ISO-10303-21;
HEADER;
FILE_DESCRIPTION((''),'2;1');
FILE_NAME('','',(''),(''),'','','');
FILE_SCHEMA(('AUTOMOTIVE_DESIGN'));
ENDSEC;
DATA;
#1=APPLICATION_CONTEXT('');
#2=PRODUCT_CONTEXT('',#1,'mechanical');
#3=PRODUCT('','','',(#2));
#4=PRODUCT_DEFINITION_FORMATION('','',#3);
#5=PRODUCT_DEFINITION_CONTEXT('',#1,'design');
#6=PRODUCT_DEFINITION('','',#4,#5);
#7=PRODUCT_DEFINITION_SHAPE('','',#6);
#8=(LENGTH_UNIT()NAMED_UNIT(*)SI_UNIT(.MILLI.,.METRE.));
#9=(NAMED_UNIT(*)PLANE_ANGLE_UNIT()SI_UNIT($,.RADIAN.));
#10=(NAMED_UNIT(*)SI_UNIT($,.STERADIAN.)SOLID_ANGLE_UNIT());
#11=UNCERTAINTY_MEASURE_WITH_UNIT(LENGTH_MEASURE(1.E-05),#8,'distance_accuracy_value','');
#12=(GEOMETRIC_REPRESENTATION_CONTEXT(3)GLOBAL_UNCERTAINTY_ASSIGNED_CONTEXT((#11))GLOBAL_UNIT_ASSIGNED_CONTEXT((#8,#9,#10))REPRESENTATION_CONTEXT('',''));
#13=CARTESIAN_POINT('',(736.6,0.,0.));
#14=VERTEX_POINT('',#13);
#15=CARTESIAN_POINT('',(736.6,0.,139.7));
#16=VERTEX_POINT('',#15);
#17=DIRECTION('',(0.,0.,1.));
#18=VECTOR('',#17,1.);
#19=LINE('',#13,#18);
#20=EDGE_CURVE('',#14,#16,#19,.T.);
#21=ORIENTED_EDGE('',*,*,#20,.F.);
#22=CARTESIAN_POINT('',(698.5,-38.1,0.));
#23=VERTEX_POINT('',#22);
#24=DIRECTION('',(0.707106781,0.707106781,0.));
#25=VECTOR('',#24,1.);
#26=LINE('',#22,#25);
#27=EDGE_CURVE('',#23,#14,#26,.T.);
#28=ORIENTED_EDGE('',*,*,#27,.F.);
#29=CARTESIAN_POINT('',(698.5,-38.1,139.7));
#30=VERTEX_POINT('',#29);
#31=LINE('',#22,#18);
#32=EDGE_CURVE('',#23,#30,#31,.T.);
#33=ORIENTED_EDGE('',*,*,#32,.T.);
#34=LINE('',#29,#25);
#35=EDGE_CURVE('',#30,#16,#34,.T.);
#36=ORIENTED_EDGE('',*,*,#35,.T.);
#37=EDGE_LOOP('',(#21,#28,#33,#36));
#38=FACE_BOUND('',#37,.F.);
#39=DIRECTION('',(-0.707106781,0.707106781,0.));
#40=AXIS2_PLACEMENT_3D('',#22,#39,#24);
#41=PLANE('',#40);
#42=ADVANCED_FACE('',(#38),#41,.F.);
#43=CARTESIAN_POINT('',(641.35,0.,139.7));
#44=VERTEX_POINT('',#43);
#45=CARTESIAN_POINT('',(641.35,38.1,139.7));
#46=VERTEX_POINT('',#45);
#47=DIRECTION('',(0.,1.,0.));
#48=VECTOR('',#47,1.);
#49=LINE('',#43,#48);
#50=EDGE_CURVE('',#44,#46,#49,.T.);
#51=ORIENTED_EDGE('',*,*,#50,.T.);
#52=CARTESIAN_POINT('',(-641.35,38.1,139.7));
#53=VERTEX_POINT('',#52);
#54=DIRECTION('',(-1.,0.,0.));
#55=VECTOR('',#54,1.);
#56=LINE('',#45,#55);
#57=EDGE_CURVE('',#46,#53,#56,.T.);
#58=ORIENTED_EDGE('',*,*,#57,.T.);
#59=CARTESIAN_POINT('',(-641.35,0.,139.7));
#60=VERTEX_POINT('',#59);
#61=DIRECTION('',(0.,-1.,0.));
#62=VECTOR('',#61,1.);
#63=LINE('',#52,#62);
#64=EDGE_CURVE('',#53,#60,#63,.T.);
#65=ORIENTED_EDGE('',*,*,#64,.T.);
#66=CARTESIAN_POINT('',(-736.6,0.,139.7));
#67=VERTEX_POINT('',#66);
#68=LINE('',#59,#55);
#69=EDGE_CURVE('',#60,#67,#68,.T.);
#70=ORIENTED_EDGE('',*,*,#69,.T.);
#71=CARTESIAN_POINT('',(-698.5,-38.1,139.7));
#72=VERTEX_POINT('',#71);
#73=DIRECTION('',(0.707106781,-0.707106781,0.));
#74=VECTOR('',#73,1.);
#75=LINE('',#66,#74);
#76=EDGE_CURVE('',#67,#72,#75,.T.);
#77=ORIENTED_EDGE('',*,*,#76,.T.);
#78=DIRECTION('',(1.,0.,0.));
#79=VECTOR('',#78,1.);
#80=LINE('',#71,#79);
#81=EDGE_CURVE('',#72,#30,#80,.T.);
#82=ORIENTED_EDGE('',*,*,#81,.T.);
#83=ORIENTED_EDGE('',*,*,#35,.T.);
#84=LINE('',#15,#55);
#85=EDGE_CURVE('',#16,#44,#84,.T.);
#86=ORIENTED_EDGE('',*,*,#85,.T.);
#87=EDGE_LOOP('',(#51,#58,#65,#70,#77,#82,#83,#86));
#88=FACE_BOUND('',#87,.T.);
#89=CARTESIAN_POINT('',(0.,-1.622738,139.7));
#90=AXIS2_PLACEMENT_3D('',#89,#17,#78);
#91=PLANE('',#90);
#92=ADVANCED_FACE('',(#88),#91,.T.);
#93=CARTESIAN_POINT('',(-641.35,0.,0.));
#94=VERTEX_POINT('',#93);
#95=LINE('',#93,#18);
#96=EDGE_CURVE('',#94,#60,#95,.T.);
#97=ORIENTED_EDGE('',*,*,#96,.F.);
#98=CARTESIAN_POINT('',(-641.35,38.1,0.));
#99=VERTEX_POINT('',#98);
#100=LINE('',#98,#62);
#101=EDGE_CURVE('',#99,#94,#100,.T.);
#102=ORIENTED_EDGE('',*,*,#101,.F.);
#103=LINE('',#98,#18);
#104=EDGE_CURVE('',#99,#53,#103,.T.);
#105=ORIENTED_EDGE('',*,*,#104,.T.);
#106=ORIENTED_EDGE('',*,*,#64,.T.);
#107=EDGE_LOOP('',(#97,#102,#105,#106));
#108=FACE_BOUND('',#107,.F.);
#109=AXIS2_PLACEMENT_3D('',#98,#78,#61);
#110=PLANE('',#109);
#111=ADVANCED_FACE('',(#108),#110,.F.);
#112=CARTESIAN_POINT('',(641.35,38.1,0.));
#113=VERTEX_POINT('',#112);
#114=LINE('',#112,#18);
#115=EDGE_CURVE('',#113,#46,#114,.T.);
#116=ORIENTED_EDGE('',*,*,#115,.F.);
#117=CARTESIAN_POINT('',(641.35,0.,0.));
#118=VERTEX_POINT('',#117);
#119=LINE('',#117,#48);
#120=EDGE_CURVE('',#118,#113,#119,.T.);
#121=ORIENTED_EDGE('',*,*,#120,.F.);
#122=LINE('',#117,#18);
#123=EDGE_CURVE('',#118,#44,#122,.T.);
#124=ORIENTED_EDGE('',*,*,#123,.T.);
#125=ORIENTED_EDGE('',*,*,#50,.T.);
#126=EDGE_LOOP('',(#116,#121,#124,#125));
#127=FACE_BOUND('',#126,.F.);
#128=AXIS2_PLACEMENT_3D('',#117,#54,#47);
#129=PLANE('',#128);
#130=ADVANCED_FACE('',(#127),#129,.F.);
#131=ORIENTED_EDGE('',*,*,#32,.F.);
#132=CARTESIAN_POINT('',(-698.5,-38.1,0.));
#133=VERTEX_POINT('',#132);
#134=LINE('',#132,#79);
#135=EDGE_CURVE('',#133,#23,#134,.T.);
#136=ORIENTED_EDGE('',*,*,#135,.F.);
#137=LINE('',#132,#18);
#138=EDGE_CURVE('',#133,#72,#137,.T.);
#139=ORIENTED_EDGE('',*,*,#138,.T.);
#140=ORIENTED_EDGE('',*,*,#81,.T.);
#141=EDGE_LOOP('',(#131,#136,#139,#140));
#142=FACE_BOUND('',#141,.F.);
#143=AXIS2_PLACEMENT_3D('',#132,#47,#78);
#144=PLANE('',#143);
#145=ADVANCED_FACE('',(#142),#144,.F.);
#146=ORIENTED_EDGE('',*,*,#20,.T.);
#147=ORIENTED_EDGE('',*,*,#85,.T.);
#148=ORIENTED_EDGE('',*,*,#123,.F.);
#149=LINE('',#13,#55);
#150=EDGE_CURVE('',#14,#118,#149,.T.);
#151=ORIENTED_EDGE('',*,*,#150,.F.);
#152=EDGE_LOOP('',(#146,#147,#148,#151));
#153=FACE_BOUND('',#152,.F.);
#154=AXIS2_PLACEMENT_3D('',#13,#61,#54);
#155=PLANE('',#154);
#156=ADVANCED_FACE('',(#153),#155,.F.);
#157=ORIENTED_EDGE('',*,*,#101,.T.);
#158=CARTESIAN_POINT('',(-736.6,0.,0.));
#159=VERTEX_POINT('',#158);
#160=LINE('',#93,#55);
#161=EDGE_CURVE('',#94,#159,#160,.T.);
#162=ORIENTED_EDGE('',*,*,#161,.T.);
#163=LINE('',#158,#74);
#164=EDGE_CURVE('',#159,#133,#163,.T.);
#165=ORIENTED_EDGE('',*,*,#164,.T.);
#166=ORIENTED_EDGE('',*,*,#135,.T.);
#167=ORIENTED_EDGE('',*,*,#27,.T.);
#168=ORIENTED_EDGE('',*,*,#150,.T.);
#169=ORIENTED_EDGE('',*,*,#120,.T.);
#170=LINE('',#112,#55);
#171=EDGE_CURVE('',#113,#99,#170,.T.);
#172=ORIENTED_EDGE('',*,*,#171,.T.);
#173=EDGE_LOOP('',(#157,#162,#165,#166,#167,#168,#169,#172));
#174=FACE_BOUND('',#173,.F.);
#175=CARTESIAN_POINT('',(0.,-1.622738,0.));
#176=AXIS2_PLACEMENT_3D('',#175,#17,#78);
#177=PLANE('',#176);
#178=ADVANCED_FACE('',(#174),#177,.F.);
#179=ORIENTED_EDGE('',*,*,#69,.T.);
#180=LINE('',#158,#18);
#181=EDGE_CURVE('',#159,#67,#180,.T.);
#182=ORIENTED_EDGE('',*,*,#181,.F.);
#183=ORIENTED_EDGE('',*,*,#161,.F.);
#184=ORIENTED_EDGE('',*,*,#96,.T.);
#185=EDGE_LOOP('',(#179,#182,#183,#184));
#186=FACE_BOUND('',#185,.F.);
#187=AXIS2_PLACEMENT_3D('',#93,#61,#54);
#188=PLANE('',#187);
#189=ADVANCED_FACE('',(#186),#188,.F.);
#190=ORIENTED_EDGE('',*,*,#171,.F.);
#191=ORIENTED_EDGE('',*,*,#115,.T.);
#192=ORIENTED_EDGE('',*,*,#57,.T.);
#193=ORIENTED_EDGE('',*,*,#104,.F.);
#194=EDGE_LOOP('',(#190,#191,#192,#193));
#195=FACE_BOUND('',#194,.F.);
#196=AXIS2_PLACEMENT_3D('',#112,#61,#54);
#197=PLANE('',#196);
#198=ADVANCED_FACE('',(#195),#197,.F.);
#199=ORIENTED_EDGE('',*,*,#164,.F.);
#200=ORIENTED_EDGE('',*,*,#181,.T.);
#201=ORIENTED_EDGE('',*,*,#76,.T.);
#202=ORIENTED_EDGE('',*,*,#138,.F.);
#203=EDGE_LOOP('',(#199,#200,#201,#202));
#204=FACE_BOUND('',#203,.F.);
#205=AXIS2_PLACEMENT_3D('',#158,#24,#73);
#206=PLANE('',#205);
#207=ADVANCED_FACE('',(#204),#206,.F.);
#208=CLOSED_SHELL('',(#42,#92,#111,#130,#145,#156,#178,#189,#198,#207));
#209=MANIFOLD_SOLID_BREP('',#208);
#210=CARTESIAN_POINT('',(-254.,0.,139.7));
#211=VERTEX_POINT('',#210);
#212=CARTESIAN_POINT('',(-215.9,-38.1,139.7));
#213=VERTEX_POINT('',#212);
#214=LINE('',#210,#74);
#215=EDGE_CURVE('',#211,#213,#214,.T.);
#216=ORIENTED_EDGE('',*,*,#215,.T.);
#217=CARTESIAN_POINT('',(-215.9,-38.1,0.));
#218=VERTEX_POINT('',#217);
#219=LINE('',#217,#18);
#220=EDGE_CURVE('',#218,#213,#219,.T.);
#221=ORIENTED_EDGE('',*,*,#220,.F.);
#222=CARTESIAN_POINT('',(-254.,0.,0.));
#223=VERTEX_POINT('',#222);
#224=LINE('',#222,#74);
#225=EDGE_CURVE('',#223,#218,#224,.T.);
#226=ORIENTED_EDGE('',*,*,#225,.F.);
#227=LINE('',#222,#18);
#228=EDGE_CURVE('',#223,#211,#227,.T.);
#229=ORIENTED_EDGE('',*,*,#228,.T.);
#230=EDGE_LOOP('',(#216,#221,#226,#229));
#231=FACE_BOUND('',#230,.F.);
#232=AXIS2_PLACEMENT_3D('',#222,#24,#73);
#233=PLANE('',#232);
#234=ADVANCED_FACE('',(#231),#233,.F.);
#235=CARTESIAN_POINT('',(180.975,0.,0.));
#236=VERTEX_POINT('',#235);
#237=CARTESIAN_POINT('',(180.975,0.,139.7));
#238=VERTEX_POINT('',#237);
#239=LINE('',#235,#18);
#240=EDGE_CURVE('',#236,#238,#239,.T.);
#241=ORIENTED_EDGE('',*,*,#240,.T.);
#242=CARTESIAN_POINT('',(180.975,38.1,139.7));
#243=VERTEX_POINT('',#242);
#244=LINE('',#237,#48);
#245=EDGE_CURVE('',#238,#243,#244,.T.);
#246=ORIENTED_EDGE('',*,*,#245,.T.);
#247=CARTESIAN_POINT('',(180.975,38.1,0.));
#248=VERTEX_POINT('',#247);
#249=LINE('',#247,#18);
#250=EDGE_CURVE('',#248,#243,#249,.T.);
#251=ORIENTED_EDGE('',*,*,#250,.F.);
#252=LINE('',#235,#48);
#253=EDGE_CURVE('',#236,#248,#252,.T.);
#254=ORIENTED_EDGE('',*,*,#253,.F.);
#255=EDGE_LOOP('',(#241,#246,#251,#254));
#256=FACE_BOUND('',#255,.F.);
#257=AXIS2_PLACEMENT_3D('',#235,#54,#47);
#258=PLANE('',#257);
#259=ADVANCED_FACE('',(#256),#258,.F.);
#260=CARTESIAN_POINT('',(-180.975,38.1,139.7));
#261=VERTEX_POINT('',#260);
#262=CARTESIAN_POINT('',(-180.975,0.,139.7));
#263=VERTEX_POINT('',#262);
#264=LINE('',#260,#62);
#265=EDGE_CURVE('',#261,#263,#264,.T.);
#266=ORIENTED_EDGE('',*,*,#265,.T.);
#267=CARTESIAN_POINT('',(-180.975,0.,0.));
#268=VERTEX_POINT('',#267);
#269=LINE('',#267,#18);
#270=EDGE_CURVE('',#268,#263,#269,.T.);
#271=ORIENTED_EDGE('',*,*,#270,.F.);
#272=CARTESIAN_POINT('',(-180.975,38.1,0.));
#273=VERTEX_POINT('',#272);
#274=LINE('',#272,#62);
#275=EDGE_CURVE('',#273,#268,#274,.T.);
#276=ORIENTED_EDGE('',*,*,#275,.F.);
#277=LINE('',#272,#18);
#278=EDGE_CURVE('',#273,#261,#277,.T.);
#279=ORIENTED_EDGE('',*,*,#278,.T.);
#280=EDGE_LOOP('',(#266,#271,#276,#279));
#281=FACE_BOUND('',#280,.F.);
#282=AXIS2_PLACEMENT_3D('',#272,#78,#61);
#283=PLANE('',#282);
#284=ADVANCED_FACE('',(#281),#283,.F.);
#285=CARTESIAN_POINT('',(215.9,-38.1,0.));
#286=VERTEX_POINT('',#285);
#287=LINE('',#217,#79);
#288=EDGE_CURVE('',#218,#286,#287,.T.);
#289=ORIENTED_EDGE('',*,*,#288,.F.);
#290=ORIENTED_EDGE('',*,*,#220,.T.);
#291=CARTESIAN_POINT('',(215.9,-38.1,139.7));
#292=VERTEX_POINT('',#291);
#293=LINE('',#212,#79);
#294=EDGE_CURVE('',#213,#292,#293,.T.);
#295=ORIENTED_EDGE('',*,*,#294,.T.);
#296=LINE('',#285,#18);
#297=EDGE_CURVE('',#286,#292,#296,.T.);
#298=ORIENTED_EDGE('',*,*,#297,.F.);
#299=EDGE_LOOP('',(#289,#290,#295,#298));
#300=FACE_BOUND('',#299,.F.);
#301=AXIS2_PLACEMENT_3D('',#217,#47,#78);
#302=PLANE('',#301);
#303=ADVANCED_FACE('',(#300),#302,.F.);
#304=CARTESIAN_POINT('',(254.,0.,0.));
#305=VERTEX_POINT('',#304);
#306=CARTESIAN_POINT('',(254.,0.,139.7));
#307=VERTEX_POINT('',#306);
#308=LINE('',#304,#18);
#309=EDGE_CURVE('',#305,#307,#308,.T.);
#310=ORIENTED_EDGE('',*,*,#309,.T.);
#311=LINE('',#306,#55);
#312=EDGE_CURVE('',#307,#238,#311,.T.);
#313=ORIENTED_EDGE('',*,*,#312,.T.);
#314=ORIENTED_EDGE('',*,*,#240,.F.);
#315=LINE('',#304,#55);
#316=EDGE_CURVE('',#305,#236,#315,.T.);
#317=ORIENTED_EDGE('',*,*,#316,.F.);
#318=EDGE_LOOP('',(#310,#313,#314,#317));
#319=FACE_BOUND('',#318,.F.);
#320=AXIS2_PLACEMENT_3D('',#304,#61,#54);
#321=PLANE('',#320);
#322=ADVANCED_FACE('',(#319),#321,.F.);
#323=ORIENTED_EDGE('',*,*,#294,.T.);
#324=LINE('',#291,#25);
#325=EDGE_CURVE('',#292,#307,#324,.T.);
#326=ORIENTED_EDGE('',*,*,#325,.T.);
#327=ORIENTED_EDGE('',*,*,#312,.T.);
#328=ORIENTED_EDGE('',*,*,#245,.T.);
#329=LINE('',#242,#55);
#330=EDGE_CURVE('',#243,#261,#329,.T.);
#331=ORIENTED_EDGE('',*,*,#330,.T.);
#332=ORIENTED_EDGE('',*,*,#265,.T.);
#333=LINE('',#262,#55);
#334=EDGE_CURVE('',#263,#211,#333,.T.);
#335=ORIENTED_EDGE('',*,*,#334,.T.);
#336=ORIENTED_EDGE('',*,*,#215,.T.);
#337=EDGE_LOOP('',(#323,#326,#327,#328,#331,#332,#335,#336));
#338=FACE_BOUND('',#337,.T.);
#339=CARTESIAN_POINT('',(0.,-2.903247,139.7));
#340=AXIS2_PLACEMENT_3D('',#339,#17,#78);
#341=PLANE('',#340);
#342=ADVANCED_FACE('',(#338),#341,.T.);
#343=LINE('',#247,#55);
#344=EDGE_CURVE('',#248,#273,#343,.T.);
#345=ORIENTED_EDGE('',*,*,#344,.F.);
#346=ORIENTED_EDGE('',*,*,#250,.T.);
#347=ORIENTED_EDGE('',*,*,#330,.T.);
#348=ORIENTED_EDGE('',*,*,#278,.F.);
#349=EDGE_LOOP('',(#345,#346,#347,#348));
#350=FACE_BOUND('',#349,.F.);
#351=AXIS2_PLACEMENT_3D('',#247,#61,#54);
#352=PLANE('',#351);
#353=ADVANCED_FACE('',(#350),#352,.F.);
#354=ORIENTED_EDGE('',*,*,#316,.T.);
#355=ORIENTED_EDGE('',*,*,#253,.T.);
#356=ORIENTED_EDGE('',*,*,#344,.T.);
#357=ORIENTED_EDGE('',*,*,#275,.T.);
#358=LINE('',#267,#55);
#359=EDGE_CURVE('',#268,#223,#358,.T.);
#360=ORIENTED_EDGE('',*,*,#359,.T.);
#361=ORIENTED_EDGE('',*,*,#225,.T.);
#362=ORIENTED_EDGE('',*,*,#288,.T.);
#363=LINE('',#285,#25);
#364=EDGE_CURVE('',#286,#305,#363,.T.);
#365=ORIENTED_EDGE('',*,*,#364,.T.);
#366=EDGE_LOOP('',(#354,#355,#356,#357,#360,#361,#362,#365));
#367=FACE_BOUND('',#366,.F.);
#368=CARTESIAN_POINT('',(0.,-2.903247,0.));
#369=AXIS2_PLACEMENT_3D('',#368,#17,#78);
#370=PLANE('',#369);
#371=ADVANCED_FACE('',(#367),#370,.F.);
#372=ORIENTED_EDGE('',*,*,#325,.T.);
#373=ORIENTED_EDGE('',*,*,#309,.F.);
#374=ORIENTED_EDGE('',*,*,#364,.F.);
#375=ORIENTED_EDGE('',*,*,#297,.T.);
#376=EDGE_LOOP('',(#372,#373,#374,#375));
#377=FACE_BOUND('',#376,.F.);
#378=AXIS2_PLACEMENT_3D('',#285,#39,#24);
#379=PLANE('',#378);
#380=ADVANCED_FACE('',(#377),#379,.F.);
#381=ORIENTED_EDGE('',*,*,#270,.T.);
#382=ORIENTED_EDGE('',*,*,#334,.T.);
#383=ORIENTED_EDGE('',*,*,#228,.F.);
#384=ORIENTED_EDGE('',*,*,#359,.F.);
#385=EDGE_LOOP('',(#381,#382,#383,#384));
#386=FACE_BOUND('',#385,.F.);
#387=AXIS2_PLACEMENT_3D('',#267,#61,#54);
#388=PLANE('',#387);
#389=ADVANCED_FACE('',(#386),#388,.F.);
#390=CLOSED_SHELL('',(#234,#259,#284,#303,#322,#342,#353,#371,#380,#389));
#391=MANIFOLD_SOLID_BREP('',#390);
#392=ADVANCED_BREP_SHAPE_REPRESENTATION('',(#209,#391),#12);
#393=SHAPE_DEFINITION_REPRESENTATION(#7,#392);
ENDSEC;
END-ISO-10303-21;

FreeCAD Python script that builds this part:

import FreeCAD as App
import Part
import Sketcher
from FreeCAD import Vector
Q = App.Units.Quantity

doc = App.newDocument("Part")
body = doc.addObject("PartDesign::Body", "Body")

# Sketch on XY plane
sketch1 = body.newObject("Sketcher::SketchObject", "Sketch")
sketch1.AttachmentSupport = (doc.getObject("XY_Plane"), [""])
sketch1.MapMode = "FlatFace"
sketch1.addGeometry(Part.LineSegment(Vector(-737, 0, 0), Vector(-698, -38, 0)), False)
sketch1.addGeometry(Part.LineSegment(Vector(-698, -38, 0), Vector(698, -38, 0)), False)
sketch1.addGeometry(Part.LineSegment(Vector(698, -38, 0), Vector(737, 0, 0)), False)
sketch1.addGeometry(Part.LineSegment(Vector(737, 0, 0), Vector(641, 0, 0)), False)
sketch1.addGeometry(Part.LineSegment(Vector(641, 0, 0), Vector(641, 38, 0)), False)
sketch1.addGeometry(Part.LineSegment(Vector(641, 38, 0), Vector(-641, 38, 0)), False)
sketch1.addGeometry(Part.LineSegment(Vector(-641, 38, 0), Vector(-641, 0, 0)), False)
sketch1.addGeometry(Part.LineSegment(Vector(-641, 0, 0), Vector(-737, 0, 0)), False)
sketch1.addConstraint(Sketcher.Constraint("Coincident", 0, 2, 1, 1))
sketch1.addConstraint(Sketcher.Constraint("Coincident", 1, 2, 2, 1))
sketch1.addConstraint(Sketcher.Constraint("Coincident", 2, 2, 3, 1))
sketch1.addConstraint(Sketcher.Constraint("Coincident", 3, 2, 4, 1))
sketch1.addConstraint(Sketcher.Constraint("Coincident", 4, 2, 5, 1))
sketch1.addConstraint(Sketcher.Constraint("Coincident", 5, 2, 6, 1))
sketch1.addConstraint(Sketcher.Constraint("Coincident", 6, 2, 7, 1))
sketch1.addConstraint(Sketcher.Constraint("Coincident", 7, 2, 0, 1))
sketch1.addConstraint(Sketcher.Constraint("Horizontal", 1))
sketch1.addConstraint(Sketcher.Constraint("Horizontal", 3))
sketch1.addConstraint(Sketcher.Constraint("Vertical", 4))
sketch1.addConstraint(Sketcher.Constraint("Horizontal", 5))
sketch1.addConstraint(Sketcher.Constraint("Vertical", 6))
sketch1.addConstraint(Sketcher.Constraint("Horizontal", 7))
sketch1.addConstraint(Sketcher.Constraint("Symmetric", 3, 2, 6, 2, -1, 1))
sketch1.addConstraint(Sketcher.Constraint("Symmetric", 2, 2, 7, 2, -2))
sketch1.addConstraint(Sketcher.Constraint("Perpendicular", 0, 2))
sketch1.addConstraint(Sketcher.Constraint("Equal", 0, 2))
sketch1.addConstraint(Sketcher.Constraint("DistanceX", 1, 1, 1, 2, Q("55 in")))
sketch1.addConstraint(Sketcher.Constraint("DistanceX", 5, 2, 5, 1, Q("50.5 in")))
sketch1.addConstraint(Sketcher.Constraint("DistanceY", 4, 1, 4, 2, Q("1.5 in")))
sketch1.addConstraint(Sketcher.Constraint("DistanceX", -1, 1, 2, 2, Q("29 in")))
pad1 = body.newObject("PartDesign::Pad", "Pad")
pad1.Profile = sketch1
pad1.Length = Q("5.5 in")
body2 = doc.addObject("PartDesign::Body", "Body001")

# Sketch on XY plane
sketch2 = body2.newObject("Sketcher::SketchObject", "Sketch001")
sketch2.AttachmentSupport = (doc.getObject("XY_Plane001"), [""])
sketch2.MapMode = "FlatFace"
sketch2.addGeometry(Part.LineSegment(Vector(-254, 0, 0), Vector(-216, -38, 0)), False)
sketch2.addGeometry(Part.LineSegment(Vector(-216, -38, 0), Vector(216, -38, 0)), False)
sketch2.addGeometry(Part.LineSegment(Vector(216, -38, 0), Vector(254, 0, 0)), False)
sketch2.addGeometry(Part.LineSegment(Vector(254, 0, 0), Vector(181, 0, 0)), False)
sketch2.addGeometry(Part.LineSegment(Vector(181, 0, 0), Vector(181, 38, 0)), False)
sketch2.addGeometry(Part.LineSegment(Vector(181, 38, 0), Vector(-181, 38, 0)), False)
sketch2.addGeometry(Part.LineSegment(Vector(-181, 38, 0), Vector(-181, 0, 0)), False)
sketch2.addGeometry(Part.LineSegment(Vector(-181, 0, 0), Vector(-254, 0, 0)), False)
sketch2.addConstraint(Sketcher.Constraint("Coincident", 0, 2, 1, 1))
sketch2.addConstraint(Sketcher.Constraint("Coincident", 1, 2, 2, 1))
sketch2.addConstraint(Sketcher.Constraint("Coincident", 2, 2, 3, 1))
sketch2.addConstraint(Sketcher.Constraint("Coincident", 3, 2, 4, 1))
sketch2.addConstraint(Sketcher.Constraint("Coincident", 4, 2, 5, 1))
sketch2.addConstraint(Sketcher.Constraint("Coincident", 5, 2, 6, 1))
sketch2.addConstraint(Sketcher.Constraint("Coincident", 6, 2, 7, 1))
sketch2.addConstraint(Sketcher.Constraint("Coincident", 7, 2, 0, 1))
sketch2.addConstraint(Sketcher.Constraint("Horizontal", 1))
sketch2.addConstraint(Sketcher.Constraint("Horizontal", 3))
sketch2.addConstraint(Sketcher.Constraint("Vertical", 4))
sketch2.addConstraint(Sketcher.Constraint("Horizontal", 5))
sketch2.addConstraint(Sketcher.Constraint("Vertical", 6))
sketch2.addConstraint(Sketcher.Constraint("Horizontal", 7))
sketch2.addConstraint(Sketcher.Constraint("Symmetric", 3, 2, 6, 2, -1, 1))
sketch2.addConstraint(Sketcher.Constraint("Symmetric", 2, 2, 7, 2, -2))
sketch2.addConstraint(Sketcher.Constraint("Perpendicular", 0, 2))
sketch2.addConstraint(Sketcher.Constraint("Equal", 0, 2))
sketch2.addConstraint(Sketcher.Constraint("DistanceX", 1, 1, 1, 2, Q("17 in")))
sketch2.addConstraint(Sketcher.Constraint("DistanceY", 4, 1, 4, 2, Q("1.5 in")))
sketch2.addConstraint(Sketcher.Constraint("DistanceX", -1, 1, 2, 2, Q("10 in")))
sketch2.addConstraint(Sketcher.Constraint("DistanceX", 5, 2, 5, 1, Q("14.25 in")))
pad2 = body2.newObject("PartDesign::Pad", "Pad001")
pad2.Profile = sketch2
pad2.Length = Q("5.5 in")

doc.recompute()
